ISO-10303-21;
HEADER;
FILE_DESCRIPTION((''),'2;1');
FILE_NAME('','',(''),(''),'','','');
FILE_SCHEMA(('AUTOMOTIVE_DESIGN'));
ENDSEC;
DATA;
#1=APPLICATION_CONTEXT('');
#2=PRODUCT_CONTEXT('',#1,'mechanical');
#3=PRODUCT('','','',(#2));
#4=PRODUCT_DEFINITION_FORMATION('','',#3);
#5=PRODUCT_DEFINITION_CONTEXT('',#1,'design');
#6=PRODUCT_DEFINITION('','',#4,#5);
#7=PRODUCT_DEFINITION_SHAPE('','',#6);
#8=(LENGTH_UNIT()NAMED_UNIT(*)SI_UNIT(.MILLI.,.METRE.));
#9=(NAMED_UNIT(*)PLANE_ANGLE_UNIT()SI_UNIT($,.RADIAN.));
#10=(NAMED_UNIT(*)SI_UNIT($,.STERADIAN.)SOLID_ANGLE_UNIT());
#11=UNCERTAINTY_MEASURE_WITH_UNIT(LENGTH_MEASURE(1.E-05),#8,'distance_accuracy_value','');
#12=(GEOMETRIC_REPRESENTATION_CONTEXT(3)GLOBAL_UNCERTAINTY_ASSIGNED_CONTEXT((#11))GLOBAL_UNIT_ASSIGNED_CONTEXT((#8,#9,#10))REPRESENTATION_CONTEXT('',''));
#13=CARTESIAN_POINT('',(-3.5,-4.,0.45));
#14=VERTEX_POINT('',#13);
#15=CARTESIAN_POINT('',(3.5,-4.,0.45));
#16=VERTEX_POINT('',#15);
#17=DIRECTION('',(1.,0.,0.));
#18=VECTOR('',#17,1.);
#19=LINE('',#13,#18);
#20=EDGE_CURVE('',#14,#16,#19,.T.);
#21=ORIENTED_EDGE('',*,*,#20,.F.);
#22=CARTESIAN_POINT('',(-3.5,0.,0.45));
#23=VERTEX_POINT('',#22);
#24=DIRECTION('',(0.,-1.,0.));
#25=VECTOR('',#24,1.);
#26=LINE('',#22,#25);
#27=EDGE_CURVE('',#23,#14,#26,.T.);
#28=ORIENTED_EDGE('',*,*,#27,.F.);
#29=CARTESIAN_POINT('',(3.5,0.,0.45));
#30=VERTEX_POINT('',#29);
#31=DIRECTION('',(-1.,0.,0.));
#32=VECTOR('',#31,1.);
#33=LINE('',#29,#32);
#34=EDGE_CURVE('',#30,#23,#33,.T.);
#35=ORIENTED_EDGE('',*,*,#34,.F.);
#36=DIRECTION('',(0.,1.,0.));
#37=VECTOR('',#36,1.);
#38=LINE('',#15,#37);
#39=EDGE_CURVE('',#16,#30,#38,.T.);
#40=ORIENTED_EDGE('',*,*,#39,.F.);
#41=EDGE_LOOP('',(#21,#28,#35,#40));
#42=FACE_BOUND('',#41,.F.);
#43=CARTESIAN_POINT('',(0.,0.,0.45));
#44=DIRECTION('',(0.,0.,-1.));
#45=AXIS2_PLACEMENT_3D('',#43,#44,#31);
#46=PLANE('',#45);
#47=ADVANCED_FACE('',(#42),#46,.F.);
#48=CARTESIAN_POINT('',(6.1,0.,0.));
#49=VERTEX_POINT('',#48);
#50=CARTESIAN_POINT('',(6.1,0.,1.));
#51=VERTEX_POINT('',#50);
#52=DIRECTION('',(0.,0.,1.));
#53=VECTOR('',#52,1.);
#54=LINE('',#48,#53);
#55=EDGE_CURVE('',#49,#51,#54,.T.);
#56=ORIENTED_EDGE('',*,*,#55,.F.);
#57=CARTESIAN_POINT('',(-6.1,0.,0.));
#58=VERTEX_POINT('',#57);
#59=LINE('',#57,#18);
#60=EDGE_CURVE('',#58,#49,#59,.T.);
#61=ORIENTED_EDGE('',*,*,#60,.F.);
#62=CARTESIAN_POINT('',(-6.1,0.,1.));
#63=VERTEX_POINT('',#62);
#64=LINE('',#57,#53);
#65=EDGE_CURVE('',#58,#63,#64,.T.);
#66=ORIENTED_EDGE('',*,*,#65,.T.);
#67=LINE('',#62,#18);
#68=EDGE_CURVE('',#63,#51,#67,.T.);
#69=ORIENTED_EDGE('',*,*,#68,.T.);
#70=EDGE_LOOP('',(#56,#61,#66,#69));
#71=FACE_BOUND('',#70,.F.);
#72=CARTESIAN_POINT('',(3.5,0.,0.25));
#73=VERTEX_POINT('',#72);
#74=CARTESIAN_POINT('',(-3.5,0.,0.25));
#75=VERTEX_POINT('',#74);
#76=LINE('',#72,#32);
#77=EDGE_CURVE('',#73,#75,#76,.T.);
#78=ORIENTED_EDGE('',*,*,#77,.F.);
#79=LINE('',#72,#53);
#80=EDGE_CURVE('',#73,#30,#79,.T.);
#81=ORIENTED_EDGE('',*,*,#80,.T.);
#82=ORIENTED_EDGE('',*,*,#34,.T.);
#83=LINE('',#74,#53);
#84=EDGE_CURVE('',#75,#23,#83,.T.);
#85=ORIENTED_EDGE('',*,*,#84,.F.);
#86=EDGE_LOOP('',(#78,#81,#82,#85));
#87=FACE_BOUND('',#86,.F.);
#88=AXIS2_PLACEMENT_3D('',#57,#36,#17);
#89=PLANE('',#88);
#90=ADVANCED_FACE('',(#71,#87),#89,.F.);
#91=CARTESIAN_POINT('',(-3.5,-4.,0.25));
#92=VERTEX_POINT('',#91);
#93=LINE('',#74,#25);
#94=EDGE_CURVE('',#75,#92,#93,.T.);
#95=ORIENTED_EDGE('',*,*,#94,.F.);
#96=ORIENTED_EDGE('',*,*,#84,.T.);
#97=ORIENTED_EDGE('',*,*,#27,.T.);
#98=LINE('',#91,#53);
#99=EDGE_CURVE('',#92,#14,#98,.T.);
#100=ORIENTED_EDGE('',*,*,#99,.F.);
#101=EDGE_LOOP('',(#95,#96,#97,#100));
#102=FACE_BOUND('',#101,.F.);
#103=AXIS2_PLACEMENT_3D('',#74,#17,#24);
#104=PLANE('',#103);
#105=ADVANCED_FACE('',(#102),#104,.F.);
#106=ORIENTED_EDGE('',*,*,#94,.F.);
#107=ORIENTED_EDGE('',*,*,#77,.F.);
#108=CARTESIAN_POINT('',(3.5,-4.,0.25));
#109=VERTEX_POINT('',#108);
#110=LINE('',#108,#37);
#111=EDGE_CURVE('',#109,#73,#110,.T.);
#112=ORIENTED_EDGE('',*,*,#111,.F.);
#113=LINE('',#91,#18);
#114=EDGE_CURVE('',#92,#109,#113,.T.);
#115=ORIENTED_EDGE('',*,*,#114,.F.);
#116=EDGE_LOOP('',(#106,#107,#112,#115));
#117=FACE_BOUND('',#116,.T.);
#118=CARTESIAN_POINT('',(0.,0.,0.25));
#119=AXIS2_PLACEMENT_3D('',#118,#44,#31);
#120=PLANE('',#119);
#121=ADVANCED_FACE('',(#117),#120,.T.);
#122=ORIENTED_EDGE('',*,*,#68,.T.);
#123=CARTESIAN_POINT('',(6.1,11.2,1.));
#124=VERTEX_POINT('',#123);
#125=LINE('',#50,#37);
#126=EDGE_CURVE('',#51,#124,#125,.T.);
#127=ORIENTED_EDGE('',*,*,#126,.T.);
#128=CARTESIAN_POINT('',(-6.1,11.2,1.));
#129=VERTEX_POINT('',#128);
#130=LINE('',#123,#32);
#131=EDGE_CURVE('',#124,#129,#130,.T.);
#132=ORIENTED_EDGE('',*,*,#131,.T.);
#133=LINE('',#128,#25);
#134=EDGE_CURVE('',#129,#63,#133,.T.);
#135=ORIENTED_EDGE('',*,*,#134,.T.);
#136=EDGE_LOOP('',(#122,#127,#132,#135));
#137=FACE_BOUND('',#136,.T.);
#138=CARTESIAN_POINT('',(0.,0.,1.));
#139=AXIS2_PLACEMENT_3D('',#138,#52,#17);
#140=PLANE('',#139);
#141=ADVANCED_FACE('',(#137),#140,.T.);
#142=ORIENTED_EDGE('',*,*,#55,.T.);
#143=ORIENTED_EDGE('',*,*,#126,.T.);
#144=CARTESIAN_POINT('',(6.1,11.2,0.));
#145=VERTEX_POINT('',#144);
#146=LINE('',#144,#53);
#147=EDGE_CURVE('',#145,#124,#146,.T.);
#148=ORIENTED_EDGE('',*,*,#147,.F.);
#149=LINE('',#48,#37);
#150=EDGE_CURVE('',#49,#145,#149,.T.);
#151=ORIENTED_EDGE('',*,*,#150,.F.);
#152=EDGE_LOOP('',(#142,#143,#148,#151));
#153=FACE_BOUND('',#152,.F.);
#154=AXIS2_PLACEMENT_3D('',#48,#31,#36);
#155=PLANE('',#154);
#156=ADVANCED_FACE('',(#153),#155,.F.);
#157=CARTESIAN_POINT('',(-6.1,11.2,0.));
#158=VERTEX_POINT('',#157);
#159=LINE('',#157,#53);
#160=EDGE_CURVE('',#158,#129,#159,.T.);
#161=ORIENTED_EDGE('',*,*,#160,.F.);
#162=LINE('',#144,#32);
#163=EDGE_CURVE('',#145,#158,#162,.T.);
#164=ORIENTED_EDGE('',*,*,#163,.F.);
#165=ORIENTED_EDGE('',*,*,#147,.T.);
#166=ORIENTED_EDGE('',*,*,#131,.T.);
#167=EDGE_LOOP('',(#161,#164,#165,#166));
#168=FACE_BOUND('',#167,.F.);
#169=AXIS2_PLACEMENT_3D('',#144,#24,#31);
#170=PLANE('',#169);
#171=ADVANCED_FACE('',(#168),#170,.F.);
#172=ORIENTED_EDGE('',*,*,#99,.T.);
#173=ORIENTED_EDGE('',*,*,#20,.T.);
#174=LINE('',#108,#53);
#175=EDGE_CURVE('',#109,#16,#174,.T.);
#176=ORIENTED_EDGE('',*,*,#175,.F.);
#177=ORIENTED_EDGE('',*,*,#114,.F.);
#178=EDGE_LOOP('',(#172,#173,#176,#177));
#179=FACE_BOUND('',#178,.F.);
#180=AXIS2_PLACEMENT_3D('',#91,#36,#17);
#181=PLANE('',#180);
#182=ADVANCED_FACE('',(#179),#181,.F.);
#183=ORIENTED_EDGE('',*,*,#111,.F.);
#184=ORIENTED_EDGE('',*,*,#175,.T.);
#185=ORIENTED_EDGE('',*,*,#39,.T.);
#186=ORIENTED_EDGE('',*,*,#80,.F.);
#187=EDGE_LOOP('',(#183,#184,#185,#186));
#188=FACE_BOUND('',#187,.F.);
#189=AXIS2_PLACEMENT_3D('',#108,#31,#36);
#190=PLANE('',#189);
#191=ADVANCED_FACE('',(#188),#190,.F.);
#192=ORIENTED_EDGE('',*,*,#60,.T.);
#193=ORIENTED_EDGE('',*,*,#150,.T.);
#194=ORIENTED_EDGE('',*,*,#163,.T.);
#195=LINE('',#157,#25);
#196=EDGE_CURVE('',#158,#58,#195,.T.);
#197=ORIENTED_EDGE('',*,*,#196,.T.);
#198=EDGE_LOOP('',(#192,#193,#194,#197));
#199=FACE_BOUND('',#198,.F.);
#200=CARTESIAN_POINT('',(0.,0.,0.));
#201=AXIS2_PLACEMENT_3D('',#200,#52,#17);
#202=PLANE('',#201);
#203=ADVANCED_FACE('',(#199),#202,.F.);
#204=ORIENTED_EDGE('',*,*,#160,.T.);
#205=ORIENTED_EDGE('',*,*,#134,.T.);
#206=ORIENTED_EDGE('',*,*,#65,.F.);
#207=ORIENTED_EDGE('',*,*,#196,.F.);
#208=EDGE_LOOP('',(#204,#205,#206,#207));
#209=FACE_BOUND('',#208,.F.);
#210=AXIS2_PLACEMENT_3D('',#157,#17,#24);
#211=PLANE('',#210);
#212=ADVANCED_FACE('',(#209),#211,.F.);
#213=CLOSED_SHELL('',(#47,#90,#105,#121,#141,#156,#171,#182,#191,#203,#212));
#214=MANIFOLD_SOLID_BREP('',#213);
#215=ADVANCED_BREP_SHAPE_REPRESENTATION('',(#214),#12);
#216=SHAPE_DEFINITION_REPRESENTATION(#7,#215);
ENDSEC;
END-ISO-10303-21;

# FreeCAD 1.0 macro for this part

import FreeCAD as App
import Part
import Sketcher
from FreeCAD import Vector
Q = App.Units.Quantity


def add_polygon(sketch, points):
    """Adds a closed chain of lines whose ends are joined by coincident constraints."""
    first, n = sketch.GeometryCount, len(points)
    for a, b in zip(points, points[1:] + points[:1]):
        sketch.addGeometry(Part.LineSegment(App.Vector(*a, 0), App.Vector(*b, 0)), False)
    for i in range(n):
        sketch.addConstraint(Sketcher.Constraint("Coincident", first + i, 2, first + (i + 1) % n, 1))

doc = App.newDocument("Part")
body = doc.addObject("PartDesign::Body", "Body")

# Sketch on XY plane
sketch1 = doc.addObject("Sketcher::SketchObject", "Sketch")
body.addObject(sketch1)
sketch1.AttachmentSupport = (doc.XY_Plane, [""])
sketch1.MapMode = "FlatFace"
add_polygon(sketch1, [(-6, 11), (-6, 0), (6, 0), (6, 11)])  # lines 0-3
sketch1.addConstraint([
    Sketcher.Constraint("Vertical", 0),
    Sketcher.Constraint("Horizontal", 1),
    Sketcher.Constraint("Vertical", 2),
    Sketcher.Constraint("Horizontal", 3),
    Sketcher.Constraint("Symmetric", 0, 2, 1, 2, -1, 1),
    Sketcher.Constraint("DistanceX", 1, 1, 1, 2, Q("12.2 mm")),
    Sketcher.Constraint("DistanceY", 0, 2, 0, 1, Q("11.2 mm")),
])
pad1 = doc.addObject("PartDesign::Pad", "Pad")
body.addObject(pad1)
pad1.Profile = sketch1
pad1.Length = 1

# Sketch on XY plane
sketch2 = doc.addObject("Sketcher::SketchObject", "Sketch001")
body.addObject(sketch2)
sketch2.AttachmentSupport = (doc.XY_Plane, [""])
sketch2.MapMode = "FlatFace"
sketch2.AttachmentOffset = App.Placement(Vector(0, 0, 0.25), App.Rotation())
add_polygon(sketch2, [(-3.5, 0), (3.5, 0), (3.5, -4), (-3.5, -4)])  # lines 0-3
sketch2.addConstraint([
    Sketcher.Constraint("Horizontal", 0),
    Sketcher.Constraint("Vertical", 1),
    Sketcher.Constraint("Horizontal", 2),
    Sketcher.Constraint("Vertical", 3),
    Sketcher.Constraint("Symmetric", 0, 2, 3, 2, -1, 1),
    Sketcher.Constraint("DistanceX", 0, 1, 0, 2, Q("7 mm")),
    Sketcher.Constraint("DistanceY", 1, 2, 1, 1, Q("4 mm")),
])
pad2 = doc.addObject("PartDesign::Pad", "Pad001")
body.addObject(pad2)
pad2.Profile = sketch2
pad2.Length = 0.2

doc.recompute()
